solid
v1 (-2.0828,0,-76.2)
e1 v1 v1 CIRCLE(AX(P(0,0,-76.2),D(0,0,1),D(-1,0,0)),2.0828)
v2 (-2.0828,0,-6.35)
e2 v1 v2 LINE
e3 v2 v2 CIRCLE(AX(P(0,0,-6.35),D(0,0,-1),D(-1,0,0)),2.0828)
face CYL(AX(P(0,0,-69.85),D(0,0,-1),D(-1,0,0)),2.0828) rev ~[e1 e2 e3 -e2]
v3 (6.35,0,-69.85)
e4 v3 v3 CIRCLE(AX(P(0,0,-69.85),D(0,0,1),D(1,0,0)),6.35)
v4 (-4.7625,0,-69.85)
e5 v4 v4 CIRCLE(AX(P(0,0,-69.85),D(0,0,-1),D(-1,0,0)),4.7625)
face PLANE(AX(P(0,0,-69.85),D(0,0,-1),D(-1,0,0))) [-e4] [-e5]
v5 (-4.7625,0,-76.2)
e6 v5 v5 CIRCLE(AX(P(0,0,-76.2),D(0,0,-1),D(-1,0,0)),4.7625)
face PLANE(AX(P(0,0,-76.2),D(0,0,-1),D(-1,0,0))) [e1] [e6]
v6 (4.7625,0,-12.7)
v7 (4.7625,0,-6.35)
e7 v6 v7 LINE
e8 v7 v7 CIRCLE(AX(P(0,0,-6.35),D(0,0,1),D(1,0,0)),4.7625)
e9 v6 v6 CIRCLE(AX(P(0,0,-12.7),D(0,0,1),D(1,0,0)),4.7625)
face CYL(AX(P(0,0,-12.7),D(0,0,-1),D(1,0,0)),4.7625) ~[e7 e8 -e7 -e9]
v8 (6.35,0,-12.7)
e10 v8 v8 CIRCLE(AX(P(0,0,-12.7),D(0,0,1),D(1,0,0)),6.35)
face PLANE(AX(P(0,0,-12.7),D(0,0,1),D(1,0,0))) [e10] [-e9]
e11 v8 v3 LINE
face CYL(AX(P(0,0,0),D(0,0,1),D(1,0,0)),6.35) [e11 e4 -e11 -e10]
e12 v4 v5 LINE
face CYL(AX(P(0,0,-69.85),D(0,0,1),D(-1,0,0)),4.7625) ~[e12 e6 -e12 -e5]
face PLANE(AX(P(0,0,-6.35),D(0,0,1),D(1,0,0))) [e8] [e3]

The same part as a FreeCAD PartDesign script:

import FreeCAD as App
import Part
import Sketcher
Q = App.Units.Quantity

doc = App.newDocument("Part")
body = doc.addObject("PartDesign::Body", "Body")

sketch1 = doc.addObject("Sketcher::SketchObject", "Sketch")
body.addObject(sketch1)
sketch1.AttachmentSupport = (doc.XY_Plane, [""])
sketch1.MapMode = "FlatFace"
sketch1.addGeometry(Part.Circle(App.Vector(0, 0, 0), App.Vector(0, 0, 1), 6), False)
sketch1.addConstraint([
    Sketcher.Constraint("Coincident", 0, 3, -1, 1),
    Sketcher.Constraint("Diameter", 0, Q("0.5 in")),
])
pad1 = doc.addObject("PartDesign::Pad", "Pad")
body.addObject(pad1)
pad1.Profile = sketch1
pad1.Length = Q("3.25 in")
pad1.Reversed = True

sketch2 = doc.addObject("Sketcher::SketchObject", "Sketch001")
body.addObject(sketch2)
sketch2.AttachmentSupport = (doc.XY_Plane, [""])
sketch2.MapMode = "FlatFace"
sketch2.AttachmentOffset = App.Placement(App.Vector(0, 0, -2.75 * 25.4), App.Rotation())
sketch2.addGeometry(Part.Circle(App.Vector(0, 0, 0), App.Vector(0, 0, 1), 6), False)
sketch2.addConstraint([
    Sketcher.Constraint("Coincident", 0, 3, -1, 1),
    Sketcher.Constraint("Diameter", 0, Q("0.5 in")),
])
pocket1 = doc.addObject("PartDesign::Pocket", "Pocket")
body.addObject(pocket1)
pocket1.Profile = sketch2
pocket1.Length = Q("1 in")

sketch3 = doc.addObject("Sketcher::SketchObject", "Sketch002")
body.addObject(sketch3)
sketch3.AttachmentSupport = (doc.XY_Plane, [""])
sketch3.MapMode = "FlatFace"
sketch3.AttachmentOffset = App.Placement(App.Vector(0, 0, -0.5 * 25.4), App.Rotation())
sketch3.addGeometry(Part.Circle(App.Vector(0, 0, 0), App.Vector(0, 0, 1), 6), False)
sketch3.addConstraint([
    Sketcher.Constraint("Coincident", 0, 3, -1, 1),
    Sketcher.Constraint("Diameter", 0, Q("0.5 in")),
])
pocket2 = doc.addObject("PartDesign::Pocket", "Pocket001")
body.addObject(pocket2)
pocket2.Profile = sketch3
pocket2.Length = Q("1 in")
pocket2.Reversed = True

sketch4 = doc.addObject("Sketcher::SketchObject", "Sketch003")
body.addObject(sketch4)
sketch4.AttachmentSupport = (doc.XY_Plane, [""])
sketch4.MapMode = "FlatFace"
sketch4.AttachmentOffset = App.Placement(App.Vector(0, 0, -0.5 * 25.4), App.Rotation())
sketch4.addGeometry(Part.Circle(App.Vector(0, 0, 0), App.Vector(0, 0, 1), 4.8), False)
sketch4.addConstraint([
    Sketcher.Constraint("Coincident", 0, 3, -1, 1),
    Sketcher.Constraint("Diameter", 0, Q("0.375 in")),
])
pad2 = doc.addObject("PartDesign::Pad", "Pad001")
body.addObject(pad2)
pad2.Profile = sketch4
pad2.Length = Q("0.25 in")

sketch5 = doc.addObject("Sketcher::SketchObject", "Sketch004")
body.addObject(sketch5)
sketch5.AttachmentSupport = (doc.XY_Plane, [""])
sketch5.MapMode = "FlatFace"
sketch5.AttachmentOffset = App.Placement(App.Vector(0, 0, -2.75 * 25.4), App.Rotation())
sketch5.addGeometry(Part.Circle(App.Vector(0, 0, 0), App.Vector(0, 0, 1), 4.8), False)
sketch5.addConstraint([
    Sketcher.Constraint("Coincident", 0, 3, -1, 1),
    Sketcher.Constraint("Diameter", 0, Q("0.375 in")),
])
pad3 = doc.addObject("PartDesign::Pad", "Pad002")
body.addObject(pad3)
pad3.Profile = sketch5
pad3.Length = Q("0.25 in")
pad3.Reversed = True

sketch6 = doc.addObject("Sketcher::SketchObject", "Sketch005")
body.addObject(sketch6)
sketch6.AttachmentSupport = (doc.XY_Plane, [""])
sketch6.MapMode = "FlatFace"
sketch6.AttachmentOffset = App.Placement(App.Vector(0, 0, -2.75 * 25.4), App.Rotation())
sketch6.addGeometry(Part.Circle(App.Vector(0, 0, 0), App.Vector(0, 0, 1), 2.1), False)
sketch6.addConstraint([
    Sketcher.Constraint("Coincident", 0, 3, -1, 1),
    Sketcher.Constraint("Diameter", 0, Q("0.164 in")),
])
pocket3 = doc.addObject("PartDesign::Pocket", "Pocket002")
body.addObject(pocket3)
pocket3.Profile = sketch6
pocket3.Type = "ThroughAll"
pocket3.Midplane = True

doc.recompute()
